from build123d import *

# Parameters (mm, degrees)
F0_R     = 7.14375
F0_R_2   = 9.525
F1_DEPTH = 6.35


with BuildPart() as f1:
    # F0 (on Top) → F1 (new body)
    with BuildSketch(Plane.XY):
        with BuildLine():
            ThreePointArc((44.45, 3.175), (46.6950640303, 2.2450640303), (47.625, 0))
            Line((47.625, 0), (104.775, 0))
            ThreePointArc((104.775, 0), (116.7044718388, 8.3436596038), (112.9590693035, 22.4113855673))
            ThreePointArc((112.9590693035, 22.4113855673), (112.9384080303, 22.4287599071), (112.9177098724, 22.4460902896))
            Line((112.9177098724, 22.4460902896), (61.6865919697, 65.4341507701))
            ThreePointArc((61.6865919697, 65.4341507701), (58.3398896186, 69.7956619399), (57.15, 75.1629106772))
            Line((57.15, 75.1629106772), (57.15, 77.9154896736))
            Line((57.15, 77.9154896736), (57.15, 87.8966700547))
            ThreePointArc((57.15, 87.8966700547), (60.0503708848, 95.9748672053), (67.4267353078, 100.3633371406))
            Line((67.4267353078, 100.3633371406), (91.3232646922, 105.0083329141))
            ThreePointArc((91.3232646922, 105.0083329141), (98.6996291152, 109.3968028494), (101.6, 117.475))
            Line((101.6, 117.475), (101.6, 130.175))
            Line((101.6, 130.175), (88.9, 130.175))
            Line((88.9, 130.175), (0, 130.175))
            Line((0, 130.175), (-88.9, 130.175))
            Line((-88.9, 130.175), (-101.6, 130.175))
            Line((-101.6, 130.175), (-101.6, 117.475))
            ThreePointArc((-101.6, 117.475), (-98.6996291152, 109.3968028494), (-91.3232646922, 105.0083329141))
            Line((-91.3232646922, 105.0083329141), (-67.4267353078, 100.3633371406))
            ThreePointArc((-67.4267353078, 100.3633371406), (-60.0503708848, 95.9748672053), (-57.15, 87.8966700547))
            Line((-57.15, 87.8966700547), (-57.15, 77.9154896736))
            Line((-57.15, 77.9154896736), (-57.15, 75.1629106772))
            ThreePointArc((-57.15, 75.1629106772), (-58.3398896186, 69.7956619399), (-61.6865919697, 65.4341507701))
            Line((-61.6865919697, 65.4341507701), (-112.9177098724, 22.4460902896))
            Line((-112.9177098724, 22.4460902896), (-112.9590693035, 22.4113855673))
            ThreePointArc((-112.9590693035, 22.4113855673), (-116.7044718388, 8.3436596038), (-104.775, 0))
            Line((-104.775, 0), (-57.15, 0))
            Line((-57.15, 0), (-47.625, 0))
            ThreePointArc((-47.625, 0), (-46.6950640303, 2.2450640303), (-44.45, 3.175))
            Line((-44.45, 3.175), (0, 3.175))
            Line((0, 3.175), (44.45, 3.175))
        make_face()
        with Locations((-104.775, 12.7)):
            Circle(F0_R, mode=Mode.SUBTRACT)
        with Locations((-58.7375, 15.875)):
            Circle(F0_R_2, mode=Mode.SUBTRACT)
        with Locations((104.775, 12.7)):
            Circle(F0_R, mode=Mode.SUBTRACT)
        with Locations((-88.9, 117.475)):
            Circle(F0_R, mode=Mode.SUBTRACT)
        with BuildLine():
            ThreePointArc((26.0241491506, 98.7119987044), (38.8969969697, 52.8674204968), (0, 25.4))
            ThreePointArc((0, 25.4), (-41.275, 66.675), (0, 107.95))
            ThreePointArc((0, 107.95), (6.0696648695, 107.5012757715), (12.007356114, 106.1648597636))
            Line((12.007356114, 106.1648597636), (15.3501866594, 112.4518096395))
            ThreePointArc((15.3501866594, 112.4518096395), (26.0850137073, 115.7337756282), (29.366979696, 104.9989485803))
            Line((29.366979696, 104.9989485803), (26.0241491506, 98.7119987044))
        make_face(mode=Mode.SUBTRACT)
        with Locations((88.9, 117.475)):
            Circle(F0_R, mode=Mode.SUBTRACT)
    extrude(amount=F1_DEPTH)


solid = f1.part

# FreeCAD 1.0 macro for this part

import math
import FreeCAD as App
import Part
import Sketcher
Q = App.Units.Quantity

doc = App.newDocument("Part")
params = doc.addObject("Spreadsheet::Sheet", "Params")
for row, (alias, value) in enumerate([
    ("sketch1_radius", "0.5 in"),
    ("sketch1_diameter", "0.75 in"),
    ("sketch1_width", "8 in"),
    ("sketch1_diameter2", "0.5625 in"),
    ("sketch1_width2", "3.5 in"),
    ("pad1_length", "0.25 in"),
], start=1):
    params.set(f"A{row}", alias)
    params.set(f"B{row}", "=" + value)
    params.setAlias(f"B{row}", alias)

body = doc.addObject("PartDesign::Body", "Body")

# Sketch on XY plane
sketch1 = body.newObject("Sketcher::SketchObject", "Sketch")
sketch1.AttachmentSupport = (doc.getObject("XY_Plane"), [""])
sketch1.MapMode = "FlatFace"
sketch1.addGeometry([
    Part.ArcOfCircle(Part.Circle(App.Vector(44.45, 0, 0), App.Vector(0, 0, 1), 3.175), math.radians(0), math.radians(90)),  # 0
    Part.LineSegment(App.Vector(47.625, 0, 0), App.Vector(104.775, 0, 0)),  # 1
    Part.ArcOfCircle(Part.Circle(App.Vector(104.775, 12.7, 0), App.Vector(0, 0, 1), 12.7), math.radians(-90), math.radians(49.878179)),  # 2
    Part.ArcOfCircle(Part.Circle(App.Vector(104.774989, 12.699986, 0), App.Vector(0, 0, 1), 12.700018), math.radians(49.878179), math.radians(50.121758)),  # 3
    Part.LineSegment(App.Vector(112.91771, 22.44609, 0), App.Vector(61.686592, 65.434151, 0)),  # 4
    Part.ArcOfCircle(Part.Circle(App.Vector(69.85, 75.162911, 0), App.Vector(0, 0, 1), 12.7), math.radians(180), math.radians(229.999968)),  # 5
    Part.LineSegment(App.Vector(57.15, 75.162911, 0), App.Vector(57.15, 87.89667, 0)),  # 6
    Part.ArcOfCircle(Part.Circle(App.Vector(69.85, 87.89667, 0), App.Vector(0, 0, 1), 12.7), math.radians(100.999956), math.radians(180)),  # 7
    Part.LineSegment(App.Vector(67.426735, 100.363337, 0), App.Vector(91.323265, 105.008333, 0)),  # 8
    Part.ArcOfCircle(Part.Circle(App.Vector(88.9, 117.475, 0), App.Vector(0, 0, 1), 12.7), math.radians(-79.000044), math.radians(0)),  # 9
    Part.LineSegment(App.Vector(101.6, 117.475, 0), App.Vector(101.6, 130.175, 0)),  # 10
    Part.LineSegment(App.Vector(101.6, 130.175, 0), App.Vector(-101.6, 130.175, 0)),  # 11
    Part.LineSegment(App.Vector(-101.6, 130.175, 0), App.Vector(-101.6, 117.475, 0)),  # 12
    Part.ArcOfCircle(Part.Circle(App.Vector(-88.9, 117.475, 0), App.Vector(0, 0, 1), 12.7), math.radians(180), math.radians(259.000044)),  # 13
    Part.LineSegment(App.Vector(-91.323265, 105.008333, 0), App.Vector(-67.426735, 100.363337, 0)),  # 14
    Part.ArcOfCircle(Part.Circle(App.Vector(-69.85, 87.89667, 0), App.Vector(0, 0, 1), 12.7), math.radians(0), math.radians(79.000044)),  # 15
    Part.LineSegment(App.Vector(-57.15, 87.89667, 0), App.Vector(-57.15, 75.162911, 0)),  # 16
    Part.ArcOfCircle(Part.Circle(App.Vector(-69.85, 75.162911, 0), App.Vector(0, 0, 1), 12.7), math.radians(-49.999968), math.radians(0)),  # 17
    Part.LineSegment(App.Vector(-61.686592, 65.434151, 0), App.Vector(-112.91771, 22.44609, 0)),  # 18
    Part.LineSegment(App.Vector(-112.91771, 22.44609, 0), App.Vector(-112.959069, 22.411386, 0)),  # 19
    Part.ArcOfCircle(Part.Circle(App.Vector(-104.775, 12.7, 0), App.Vector(0, 0, 1), 12.7), math.radians(130.121821), math.radians(270)),  # 20
    Part.LineSegment(App.Vector(-104.775, 0, 0), App.Vector(-47.625, 0, 0)),  # 21
    Part.ArcOfCircle(Part.Circle(App.Vector(-44.45, 0, 0), App.Vector(0, 0, 1), 3.175), math.radians(90), math.radians(180)),  # 22
    Part.LineSegment(App.Vector(-44.45, 3.175, 0), App.Vector(44.45, 3.175, 0)),  # 23
    Part.Circle(App.Vector(-104.775, 12.7, 0), App.Vector(0, 0, 1), 7.14375),  # 24
    Part.Circle(App.Vector(-58.7375, 15.875, 0), App.Vector(0, 0, 1), 9.525),  # 25
    Part.Circle(App.Vector(104.775, 12.7, 0), App.Vector(0, 0, 1), 7.14375),  # 26
    Part.LineSegment(App.Vector(29.36698, 104.998949, 0), App.Vector(26.024149, 98.711999, 0)),  # 27
    Part.ArcOfCircle(Part.Circle(App.Vector(0, 66.675, 0), App.Vector(0, 0, 1), 41.275), math.radians(90), math.radians(410.912511)),  # 28
    Part.ArcOfCircle(Part.Circle(App.Vector(0, 66.675, 0), App.Vector(0, 0, 1), 41.275), math.radians(73.087489), math.radians(90)),  # 29
    Part.LineSegment(App.Vector(12.007356, 106.16486, 0), App.Vector(15.350187, 112.45181, 0)),  # 30
    Part.ArcOfCircle(Part.Circle(App.Vector(22.358583, 108.725379, 0), App.Vector(0, 0, 1), 7.9375), math.radians(-28), math.radians(152)),  # 31
    Part.Circle(App.Vector(-88.9, 117.475, 0), App.Vector(0, 0, 1), 7.14375),  # 32
    Part.Circle(App.Vector(88.9, 117.475, 0), App.Vector(0, 0, 1), 7.14375),  # 33
], False)
sketch1.addConstraint([
    Sketcher.Constraint("Coincident", 0, 1, 1, 1),
    Sketcher.Constraint("Tangent", 1, 2, 2, 1),
    Sketcher.Constraint("Tangent", 2, 2, 3, 1),
    Sketcher.Constraint("Coincident", 3, 2, 4, 1),
    Sketcher.Constraint("Tangent", 4, 2, 5, 2),
    Sketcher.Constraint("Tangent", 5, 1, 6, 1),
    Sketcher.Constraint("Tangent", 6, 2, 7, 2),
    Sketcher.Constraint("Tangent", 7, 1, 8, 1),
    Sketcher.Constraint("Tangent", 8, 2, 9, 1),
    Sketcher.Constraint("Tangent", 9, 2, 10, 1),
    Sketcher.Constraint("Coincident", 10, 2, 11, 1),
    Sketcher.Constraint("Coincident", 11, 2, 12, 1),
    Sketcher.Constraint("Tangent", 12, 2, 13, 1),
    Sketcher.Constraint("Tangent", 13, 2, 14, 1),
    Sketcher.Constraint("Tangent", 14, 2, 15, 2),
    Sketcher.Constraint("Tangent", 15, 1, 16, 1),
    Sketcher.Constraint("Tangent", 16, 2, 17, 2),
    Sketcher.Constraint("Tangent", 17, 1, 18, 1),
    Sketcher.Constraint("Coincident", 18, 2, 19, 1),
    Sketcher.Constraint("Coincident", 19, 2, 20, 1),
    Sketcher.Constraint("Tangent", 20, 2, 21, 1),
    Sketcher.Constraint("Coincident", 21, 2, 22, 2),
    Sketcher.Constraint("Tangent", 22, 1, 23, 1),
    Sketcher.Constraint("Tangent", 23, 2, 0, 2),
    Sketcher.Constraint("Coincident", 27, 2, 28, 2),
    Sketcher.Constraint("Tangent", 28, 1, 29, 2),
    Sketcher.Constraint("Coincident", 29, 1, 30, 1),
    Sketcher.Constraint("Tangent", 30, 2, 31, 2),
    Sketcher.Constraint("Tangent", 31, 1, 27, 1),
    Sketcher.Constraint("Horizontal", 1),
    Sketcher.Constraint("Vertical", 6),
    Sketcher.Constraint("Vertical", 10),
    Sketcher.Constraint("Horizontal", 11),
    Sketcher.Constraint("Vertical", 12),
    Sketcher.Constraint("Vertical", 16),
    Sketcher.Constraint("Horizontal", 21),
    Sketcher.Constraint("Horizontal", 23),
    Sketcher.Constraint("Coincident", 24, 3, 20, 3),
    Sketcher.Constraint("Coincident", 26, 3, 2, 3),
    Sketcher.Constraint("Coincident", 32, 3, 13, 3),
    Sketcher.Constraint("Coincident", 33, 3, 9, 3),
    Sketcher.Constraint("Equal", 2, 5),
    Sketcher.Constraint("Equal", 5, 7),
    Sketcher.Constraint("Equal", 7, 9),
    Sketcher.Constraint("Equal", 9, 13),
    Sketcher.Constraint("Equal", 13, 15),
    Sketcher.Constraint("Equal", 15, 17),
    Sketcher.Constraint("Equal", 17, 20),
    Sketcher.Constraint("Equal", 0, 22),
    Sketcher.Constraint("Equal", 24, 26),
    Sketcher.Constraint("Equal", 28, 29),
    Sketcher.Constraint("Equal", 26, 32),
    Sketcher.Constraint("Equal", 32, 33),
    Sketcher.Constraint("Symmetric", 0, 3, 22, 3, -1, 1),
    Sketcher.Constraint("Symmetric", 1, 2, 20, 2, -1, 1),
    Sketcher.Constraint("Symmetric", 9, 3, 13, 3, -2),
    Sketcher.Constraint("Symmetric", 7, 3, 15, 3, -2),
    Sketcher.Constraint("Symmetric", 4, 2, 17, 1, -2),
    Sketcher.Constraint("Symmetric", 2, 2, 19, 2, -2),
    Sketcher.Constraint("PointOnObject", 28, 3, -2),
    Sketcher.Constraint("PointOnObject", 28, 1, -2),
    Sketcher.Constraint("Parallel", 18, 19),
    Sketcher.Constraint("Parallel", 27, 30),
    Sketcher.Constraint("Horizontal", 3, 2, 18, 2),
    Sketcher.Constraint("Equal", 27, 30),
    Sketcher.Constraint("Radius", 2, Q("0.5 in")),
    Sketcher.Constraint("Diameter", 25, Q("0.75 in")),
    Sketcher.Constraint("DistanceX", 11, 2, 11, 1, Q("8 in")),
    Sketcher.Constraint("Diameter", 24, Q("0.5625 in")),
    Sketcher.Constraint("DistanceX", 23, 1, 23, 2, Q("3.5 in")),
    Sketcher.Constraint("DistanceY", 10, 1, 10, 2, Q("0.5 in")),
    Sketcher.Constraint("Angle", 27, Q("-118 deg")),
    Sketcher.Constraint("Radius", 0, Q("0.125 in")),
    Sketcher.Constraint("Radius", 28, Q("1.625 in")),
    Sketcher.Constraint("Radius", 31, Q("0.3125 in")),
    Sketcher.Constraint("DistanceX", 0, 3, 5, 3, Q("1 in")),
    Sketcher.Constraint("DistanceY", 25, 3, 28, 3, Q("2 in")),
    Sketcher.Constraint("DistanceY", 28, 3, 32, 3, Q("2 in")),
    Sketcher.Constraint("DistanceX", 1, 1, 1, 2, Q("2.25 in")),
    Sketcher.Constraint("DistanceY", 22, 1, 25, 3, Q("0.5 in")),
    Sketcher.Constraint("DistanceX", 25, 3, -1, 1, Q("2.3125 in")),
    Sketcher.Constraint("Radius", 3, Q("12.700018 mm")),
    Sketcher.Constraint("DistanceY", 6, 1, 6, 2, Q("12.733759 mm")),
    Sketcher.Constraint("DistanceY", 3, 3, 2, 2, Q("9.711399 mm")),
    Sketcher.Constraint("Distance", 8, Q("24.34379 mm")),
    Sketcher.Constraint("Distance", 27, Q("7.120411 mm")),
])
sketch1.setExpression("Constraints[65]", "Params.sketch1_radius")
sketch1.setExpression("Constraints[66]", "Params.sketch1_diameter")
sketch1.setExpression("Constraints[67]", "Params.sketch1_width")
sketch1.setExpression("Constraints[68]", "Params.sketch1_diameter2")
sketch1.setExpression("Constraints[69]", "Params.sketch1_width2")
pad1 = body.newObject("PartDesign::Pad", "Pad")
pad1.Profile = sketch1
pad1.setExpression("Length", "Params.pad1_length")

doc.recompute()
